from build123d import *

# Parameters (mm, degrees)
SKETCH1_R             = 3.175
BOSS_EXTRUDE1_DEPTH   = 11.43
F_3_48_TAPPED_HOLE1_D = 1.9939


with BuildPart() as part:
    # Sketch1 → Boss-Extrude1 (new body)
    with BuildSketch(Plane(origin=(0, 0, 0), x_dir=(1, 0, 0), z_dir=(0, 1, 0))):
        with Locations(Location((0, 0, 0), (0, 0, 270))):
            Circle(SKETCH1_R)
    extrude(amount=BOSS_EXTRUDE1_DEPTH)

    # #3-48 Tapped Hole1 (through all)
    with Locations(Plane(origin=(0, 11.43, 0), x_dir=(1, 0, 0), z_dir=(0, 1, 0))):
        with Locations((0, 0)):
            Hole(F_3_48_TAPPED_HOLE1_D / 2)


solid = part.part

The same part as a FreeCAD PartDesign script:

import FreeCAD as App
import Part
import Sketcher
Q = App.Units.Quantity

doc = App.newDocument("Part")
body = doc.addObject("PartDesign::Body", "Body")

sketch1 = doc.addObject("Sketcher::SketchObject", "Sketch")
body.addObject(sketch1)
sketch1.AttachmentSupport = (doc.XZ_Plane, [""])
sketch1.MapMode = "FlatFace"
sketch1.addGeometry(Part.Circle(App.Vector(0, 0, 0), App.Vector(0, 0, 1), 3.175), False)
sketch1.addConstraint([
    Sketcher.Constraint("Coincident", 0, 3, -1, 1),
    Sketcher.Constraint("Diameter", 0, Q("0.25 in")),
])
pad1 = doc.addObject("PartDesign::Pad", "Pad")
body.addObject(pad1)
pad1.Profile = sketch1
pad1.Length = Q("0.45 in")
pad1.Reversed = True

sketch2 = doc.addObject("Sketcher::SketchObject", "Sketch001")
body.addObject(sketch2)
sketch2.AttachmentSupport = (doc.XZ_Plane, [""])
sketch2.MapMode = "FlatFace"
sketch2.AttachmentOffset = App.Placement(App.Vector(0, 0, -0.45 * 25.4), App.Rotation())
sketch2.addGeometry(Part.Circle(App.Vector(0, 0, 0), App.Vector(0, 0, 1), 0.99695), False)
sketch2.addConstraint([
    Sketcher.Constraint("Coincident", 0, 3, -1, 1),
    Sketcher.Constraint("Diameter", 0, Q("0.0785 in")),
])
doc.recompute()
hole = doc.addObject("PartDesign::Hole", "Hole")
body.addObject(hole)
hole.Profile = sketch2
hole.ThreadType = "None"
hole.Diameter = Q("0.0785 in")
hole.DepthType = "ThroughAll"
hole.Reversed = True

doc.recompute()
